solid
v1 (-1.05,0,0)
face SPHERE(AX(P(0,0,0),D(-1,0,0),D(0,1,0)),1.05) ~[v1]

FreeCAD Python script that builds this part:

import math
import FreeCAD as App
import Part
import Sketcher

V = App.Vector

doc = App.newDocument("Part")
body = doc.addObject("PartDesign::Body", "Body")

sketch1 = body.newObject("Sketcher::SketchObject", "Sketch")
sketch1.AttachmentSupport = (doc.getObject("XY_Plane"), [""])
sketch1.MapMode = "FlatFace"
sketch1.addGeometry([
    Part.LineSegment(V(-1.1, 0, 0), V(1.1, 0, 0)),
    Part.ArcOfCircle(Part.Circle(V(0, 0, 0), V(0, 0, 1), 1.1), math.radians(0), math.radians(180)),
], False)
sketch1.addConstraint([
    Sketcher.Constraint("Coincident", 0, 1, 1, 2),
    Sketcher.Constraint("Coincident", 1, 1, 0, 2),
    Sketcher.Constraint("Horizontal", 0),
    Sketcher.Constraint("Coincident", 1, 3, -1, 1),
    Sketcher.Constraint("PointOnObject", 0, 1, -1),
    Sketcher.Constraint("Radius", 1, 1.05),
])
revolution = body.newObject("PartDesign::Revolution", "Revolution")
revolution.Profile = sketch1
revolution.ReferenceAxis = (sketch1, ["H_Axis"])
revolution.Angle = 360

doc.recompute()
